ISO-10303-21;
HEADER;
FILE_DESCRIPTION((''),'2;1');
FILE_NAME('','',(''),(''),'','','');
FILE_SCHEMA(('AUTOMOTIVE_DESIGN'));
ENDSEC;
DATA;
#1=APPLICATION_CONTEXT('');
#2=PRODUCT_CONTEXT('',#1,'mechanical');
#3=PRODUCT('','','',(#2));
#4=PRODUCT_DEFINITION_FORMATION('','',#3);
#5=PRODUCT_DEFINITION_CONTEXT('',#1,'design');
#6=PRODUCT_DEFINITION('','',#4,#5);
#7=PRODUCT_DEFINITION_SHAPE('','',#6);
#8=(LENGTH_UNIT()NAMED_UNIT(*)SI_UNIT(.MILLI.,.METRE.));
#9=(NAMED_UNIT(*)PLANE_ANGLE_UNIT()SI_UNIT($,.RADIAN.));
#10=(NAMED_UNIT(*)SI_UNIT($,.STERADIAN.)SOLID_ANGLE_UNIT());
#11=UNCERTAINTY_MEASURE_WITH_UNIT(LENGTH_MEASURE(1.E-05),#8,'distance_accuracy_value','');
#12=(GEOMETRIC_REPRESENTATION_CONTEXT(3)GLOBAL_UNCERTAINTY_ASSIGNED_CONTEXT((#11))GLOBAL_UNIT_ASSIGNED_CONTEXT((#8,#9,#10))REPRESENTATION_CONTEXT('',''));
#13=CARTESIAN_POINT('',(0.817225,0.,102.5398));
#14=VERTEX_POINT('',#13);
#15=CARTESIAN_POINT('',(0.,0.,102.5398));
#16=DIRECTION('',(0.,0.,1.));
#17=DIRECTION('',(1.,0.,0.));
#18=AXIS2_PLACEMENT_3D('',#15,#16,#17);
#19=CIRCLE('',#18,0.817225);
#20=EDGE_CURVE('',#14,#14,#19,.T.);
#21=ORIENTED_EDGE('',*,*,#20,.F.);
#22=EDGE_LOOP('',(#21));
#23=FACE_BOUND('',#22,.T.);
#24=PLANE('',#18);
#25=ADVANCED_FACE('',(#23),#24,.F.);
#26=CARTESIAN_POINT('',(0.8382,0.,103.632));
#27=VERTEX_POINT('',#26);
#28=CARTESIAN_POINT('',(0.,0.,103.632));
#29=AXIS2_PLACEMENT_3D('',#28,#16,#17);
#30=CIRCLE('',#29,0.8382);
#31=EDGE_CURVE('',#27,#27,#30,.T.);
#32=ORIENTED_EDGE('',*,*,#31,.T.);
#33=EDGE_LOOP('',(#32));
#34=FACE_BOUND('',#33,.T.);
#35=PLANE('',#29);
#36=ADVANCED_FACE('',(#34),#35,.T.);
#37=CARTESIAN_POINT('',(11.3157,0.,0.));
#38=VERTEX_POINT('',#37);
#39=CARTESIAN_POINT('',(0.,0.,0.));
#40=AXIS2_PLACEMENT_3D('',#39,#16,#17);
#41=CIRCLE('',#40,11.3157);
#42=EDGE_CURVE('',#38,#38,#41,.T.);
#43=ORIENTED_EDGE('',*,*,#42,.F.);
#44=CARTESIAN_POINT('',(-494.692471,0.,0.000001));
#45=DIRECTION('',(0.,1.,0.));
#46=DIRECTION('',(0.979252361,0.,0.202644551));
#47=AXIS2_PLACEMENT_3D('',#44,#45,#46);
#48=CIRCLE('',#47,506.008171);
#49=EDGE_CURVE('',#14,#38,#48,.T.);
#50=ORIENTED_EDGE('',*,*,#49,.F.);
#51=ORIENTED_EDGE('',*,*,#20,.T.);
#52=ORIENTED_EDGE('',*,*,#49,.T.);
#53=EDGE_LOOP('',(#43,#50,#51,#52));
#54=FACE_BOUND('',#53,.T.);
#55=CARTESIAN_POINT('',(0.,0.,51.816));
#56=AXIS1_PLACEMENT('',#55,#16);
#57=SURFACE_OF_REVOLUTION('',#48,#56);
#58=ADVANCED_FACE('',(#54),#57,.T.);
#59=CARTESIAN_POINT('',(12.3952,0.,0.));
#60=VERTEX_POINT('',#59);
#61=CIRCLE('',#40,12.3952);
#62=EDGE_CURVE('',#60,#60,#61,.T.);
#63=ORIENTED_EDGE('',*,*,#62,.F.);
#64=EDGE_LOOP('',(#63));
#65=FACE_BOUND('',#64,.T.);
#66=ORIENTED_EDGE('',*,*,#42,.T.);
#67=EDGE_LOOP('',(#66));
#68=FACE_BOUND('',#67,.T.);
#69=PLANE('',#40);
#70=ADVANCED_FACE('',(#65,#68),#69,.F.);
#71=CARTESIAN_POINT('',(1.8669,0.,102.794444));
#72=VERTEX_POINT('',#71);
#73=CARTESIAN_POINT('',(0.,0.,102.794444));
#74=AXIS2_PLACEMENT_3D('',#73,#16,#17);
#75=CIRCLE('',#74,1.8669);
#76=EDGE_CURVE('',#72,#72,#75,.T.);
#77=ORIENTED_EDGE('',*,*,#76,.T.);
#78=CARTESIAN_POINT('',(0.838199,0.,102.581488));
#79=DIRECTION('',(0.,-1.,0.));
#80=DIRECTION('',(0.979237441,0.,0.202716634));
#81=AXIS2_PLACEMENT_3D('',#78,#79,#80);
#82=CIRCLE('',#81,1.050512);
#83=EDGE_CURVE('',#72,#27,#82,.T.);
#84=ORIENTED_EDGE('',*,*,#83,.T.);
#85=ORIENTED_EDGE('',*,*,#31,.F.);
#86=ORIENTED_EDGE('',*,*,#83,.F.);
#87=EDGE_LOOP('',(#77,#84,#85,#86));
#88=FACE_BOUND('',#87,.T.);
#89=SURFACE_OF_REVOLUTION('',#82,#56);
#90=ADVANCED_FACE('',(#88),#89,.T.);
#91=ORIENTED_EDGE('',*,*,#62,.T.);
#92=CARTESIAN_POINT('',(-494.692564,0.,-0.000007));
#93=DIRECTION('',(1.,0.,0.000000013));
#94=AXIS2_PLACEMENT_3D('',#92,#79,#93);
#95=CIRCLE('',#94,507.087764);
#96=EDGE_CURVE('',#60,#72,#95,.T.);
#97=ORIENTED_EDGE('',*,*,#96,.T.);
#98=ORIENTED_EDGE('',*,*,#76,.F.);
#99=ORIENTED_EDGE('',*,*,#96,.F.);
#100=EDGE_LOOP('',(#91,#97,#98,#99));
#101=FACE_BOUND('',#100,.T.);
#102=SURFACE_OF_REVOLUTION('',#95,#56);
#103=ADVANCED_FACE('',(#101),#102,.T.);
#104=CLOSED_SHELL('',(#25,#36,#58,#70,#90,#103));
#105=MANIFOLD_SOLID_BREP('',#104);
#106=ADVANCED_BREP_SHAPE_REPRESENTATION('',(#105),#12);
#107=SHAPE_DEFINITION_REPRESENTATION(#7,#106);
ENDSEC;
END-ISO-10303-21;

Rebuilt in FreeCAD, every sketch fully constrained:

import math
import FreeCAD as App
import Part
import Sketcher
Q = App.Units.Quantity

doc = App.newDocument("Part")
params = doc.addObject("Spreadsheet::Sheet", "Params")
for row, (alias, value) in enumerate([
    ("sketch1_width", "0.033 in"),
    ("sketch1_height", "0.043 in"),
    ("revolution_angle", "360 deg"),
], start=1):
    params.set(f"A{row}", alias)
    params.set(f"B{row}", "=" + value)
    params.setAlias(f"B{row}", alias)

body = doc.addObject("PartDesign::Body", "Body")

# Sketch on XZ plane
sketch1 = body.newObject("Sketcher::SketchObject", "Sketch")
sketch1.AttachmentSupport = (doc.getObject("XZ_Plane"), [""])
sketch1.MapMode = "FlatFace"
sketch1.addGeometry([
    Part.LineSegment(App.Vector(0, 103.6, 0), App.Vector(0, 102.5, 0)),  # 0
    Part.LineSegment(App.Vector(0, 102.5, 0), App.Vector(0.8, 102.5, 0)),  # 1
    Part.ArcOfCircle(Part.Circle(App.Vector(-494.7, 0, 0), App.Vector(0, 0, 1), 506), math.radians(0), math.radians(11.69)),  # 2
    Part.LineSegment(App.Vector(11.3, 0, 0), App.Vector(12.4, 0, 0)),  # 3
    Part.ArcOfCircle(Part.Circle(App.Vector(-494.7, 0, 0), App.Vector(0, 0, 1), 507.1), math.radians(0), math.radians(11.7)),  # 4
    Part.ArcOfCircle(Part.Circle(App.Vector(0.8, 102.6, 0), App.Vector(0, 0, 1), 1.1), math.radians(12), math.radians(90)),  # 5
    Part.LineSegment(App.Vector(0.8, 103.6, 0), App.Vector(0, 103.6, 0)),  # 6
], False)
sketch1.addConstraint([
    Sketcher.Constraint("Coincident", 0, 2, 1, 1),
    Sketcher.Constraint("Coincident", 1, 2, 2, 2),
    Sketcher.Constraint("Coincident", 2, 1, 3, 1),
    Sketcher.Constraint("Coincident", 3, 2, 4, 1),
    Sketcher.Constraint("Tangent", 4, 2, 5, 1),
    Sketcher.Constraint("Tangent", 5, 2, 6, 1),
    Sketcher.Constraint("Coincident", 6, 2, 0, 1),
    Sketcher.Constraint("Vertical", 0),
    Sketcher.Constraint("Horizontal", 1),
    Sketcher.Constraint("Horizontal", 3),
    Sketcher.Constraint("Horizontal", 6),
    Sketcher.Constraint("PointOnObject", 2, 3, -1),
    Sketcher.Constraint("PointOnObject", 0, 2, -2),
    Sketcher.Constraint("PointOnObject", 3, 2, -1),
    Sketcher.Constraint("DistanceX", 6, 2, 6, 1, Q("0.033 in")),
    Sketcher.Constraint("DistanceY", 0, 2, 0, 1, Q("0.043 in")),
    Sketcher.Constraint("DistanceY", -1, 1, 5, 2, Q("4.08 in")),
    Sketcher.Constraint("DistanceX", 3, 1, 3, 2, Q("0.0425 in")),
    Sketcher.Constraint("DistanceX", -1, 1, 3, 2, Q("0.488 in")),
    Sketcher.Constraint("Radius", 2, Q("506.008171 mm")),
    Sketcher.Constraint("DistanceX", 4, 2, 2, 1, Q("0.372 in")),
    Sketcher.Constraint("Radius", 4, Q("507.087764 mm")),
])
sketch1.setExpression("Constraints[14]", "Params.sketch1_width")
sketch1.setExpression("Constraints[15]", "Params.sketch1_height")
revolution = body.newObject("PartDesign::Revolution", "Revolution")
revolution.Profile = sketch1
revolution.ReferenceAxis = (sketch1, ["V_Axis"])
revolution.setExpression("Angle", "Params.revolution_angle")

doc.recompute()
